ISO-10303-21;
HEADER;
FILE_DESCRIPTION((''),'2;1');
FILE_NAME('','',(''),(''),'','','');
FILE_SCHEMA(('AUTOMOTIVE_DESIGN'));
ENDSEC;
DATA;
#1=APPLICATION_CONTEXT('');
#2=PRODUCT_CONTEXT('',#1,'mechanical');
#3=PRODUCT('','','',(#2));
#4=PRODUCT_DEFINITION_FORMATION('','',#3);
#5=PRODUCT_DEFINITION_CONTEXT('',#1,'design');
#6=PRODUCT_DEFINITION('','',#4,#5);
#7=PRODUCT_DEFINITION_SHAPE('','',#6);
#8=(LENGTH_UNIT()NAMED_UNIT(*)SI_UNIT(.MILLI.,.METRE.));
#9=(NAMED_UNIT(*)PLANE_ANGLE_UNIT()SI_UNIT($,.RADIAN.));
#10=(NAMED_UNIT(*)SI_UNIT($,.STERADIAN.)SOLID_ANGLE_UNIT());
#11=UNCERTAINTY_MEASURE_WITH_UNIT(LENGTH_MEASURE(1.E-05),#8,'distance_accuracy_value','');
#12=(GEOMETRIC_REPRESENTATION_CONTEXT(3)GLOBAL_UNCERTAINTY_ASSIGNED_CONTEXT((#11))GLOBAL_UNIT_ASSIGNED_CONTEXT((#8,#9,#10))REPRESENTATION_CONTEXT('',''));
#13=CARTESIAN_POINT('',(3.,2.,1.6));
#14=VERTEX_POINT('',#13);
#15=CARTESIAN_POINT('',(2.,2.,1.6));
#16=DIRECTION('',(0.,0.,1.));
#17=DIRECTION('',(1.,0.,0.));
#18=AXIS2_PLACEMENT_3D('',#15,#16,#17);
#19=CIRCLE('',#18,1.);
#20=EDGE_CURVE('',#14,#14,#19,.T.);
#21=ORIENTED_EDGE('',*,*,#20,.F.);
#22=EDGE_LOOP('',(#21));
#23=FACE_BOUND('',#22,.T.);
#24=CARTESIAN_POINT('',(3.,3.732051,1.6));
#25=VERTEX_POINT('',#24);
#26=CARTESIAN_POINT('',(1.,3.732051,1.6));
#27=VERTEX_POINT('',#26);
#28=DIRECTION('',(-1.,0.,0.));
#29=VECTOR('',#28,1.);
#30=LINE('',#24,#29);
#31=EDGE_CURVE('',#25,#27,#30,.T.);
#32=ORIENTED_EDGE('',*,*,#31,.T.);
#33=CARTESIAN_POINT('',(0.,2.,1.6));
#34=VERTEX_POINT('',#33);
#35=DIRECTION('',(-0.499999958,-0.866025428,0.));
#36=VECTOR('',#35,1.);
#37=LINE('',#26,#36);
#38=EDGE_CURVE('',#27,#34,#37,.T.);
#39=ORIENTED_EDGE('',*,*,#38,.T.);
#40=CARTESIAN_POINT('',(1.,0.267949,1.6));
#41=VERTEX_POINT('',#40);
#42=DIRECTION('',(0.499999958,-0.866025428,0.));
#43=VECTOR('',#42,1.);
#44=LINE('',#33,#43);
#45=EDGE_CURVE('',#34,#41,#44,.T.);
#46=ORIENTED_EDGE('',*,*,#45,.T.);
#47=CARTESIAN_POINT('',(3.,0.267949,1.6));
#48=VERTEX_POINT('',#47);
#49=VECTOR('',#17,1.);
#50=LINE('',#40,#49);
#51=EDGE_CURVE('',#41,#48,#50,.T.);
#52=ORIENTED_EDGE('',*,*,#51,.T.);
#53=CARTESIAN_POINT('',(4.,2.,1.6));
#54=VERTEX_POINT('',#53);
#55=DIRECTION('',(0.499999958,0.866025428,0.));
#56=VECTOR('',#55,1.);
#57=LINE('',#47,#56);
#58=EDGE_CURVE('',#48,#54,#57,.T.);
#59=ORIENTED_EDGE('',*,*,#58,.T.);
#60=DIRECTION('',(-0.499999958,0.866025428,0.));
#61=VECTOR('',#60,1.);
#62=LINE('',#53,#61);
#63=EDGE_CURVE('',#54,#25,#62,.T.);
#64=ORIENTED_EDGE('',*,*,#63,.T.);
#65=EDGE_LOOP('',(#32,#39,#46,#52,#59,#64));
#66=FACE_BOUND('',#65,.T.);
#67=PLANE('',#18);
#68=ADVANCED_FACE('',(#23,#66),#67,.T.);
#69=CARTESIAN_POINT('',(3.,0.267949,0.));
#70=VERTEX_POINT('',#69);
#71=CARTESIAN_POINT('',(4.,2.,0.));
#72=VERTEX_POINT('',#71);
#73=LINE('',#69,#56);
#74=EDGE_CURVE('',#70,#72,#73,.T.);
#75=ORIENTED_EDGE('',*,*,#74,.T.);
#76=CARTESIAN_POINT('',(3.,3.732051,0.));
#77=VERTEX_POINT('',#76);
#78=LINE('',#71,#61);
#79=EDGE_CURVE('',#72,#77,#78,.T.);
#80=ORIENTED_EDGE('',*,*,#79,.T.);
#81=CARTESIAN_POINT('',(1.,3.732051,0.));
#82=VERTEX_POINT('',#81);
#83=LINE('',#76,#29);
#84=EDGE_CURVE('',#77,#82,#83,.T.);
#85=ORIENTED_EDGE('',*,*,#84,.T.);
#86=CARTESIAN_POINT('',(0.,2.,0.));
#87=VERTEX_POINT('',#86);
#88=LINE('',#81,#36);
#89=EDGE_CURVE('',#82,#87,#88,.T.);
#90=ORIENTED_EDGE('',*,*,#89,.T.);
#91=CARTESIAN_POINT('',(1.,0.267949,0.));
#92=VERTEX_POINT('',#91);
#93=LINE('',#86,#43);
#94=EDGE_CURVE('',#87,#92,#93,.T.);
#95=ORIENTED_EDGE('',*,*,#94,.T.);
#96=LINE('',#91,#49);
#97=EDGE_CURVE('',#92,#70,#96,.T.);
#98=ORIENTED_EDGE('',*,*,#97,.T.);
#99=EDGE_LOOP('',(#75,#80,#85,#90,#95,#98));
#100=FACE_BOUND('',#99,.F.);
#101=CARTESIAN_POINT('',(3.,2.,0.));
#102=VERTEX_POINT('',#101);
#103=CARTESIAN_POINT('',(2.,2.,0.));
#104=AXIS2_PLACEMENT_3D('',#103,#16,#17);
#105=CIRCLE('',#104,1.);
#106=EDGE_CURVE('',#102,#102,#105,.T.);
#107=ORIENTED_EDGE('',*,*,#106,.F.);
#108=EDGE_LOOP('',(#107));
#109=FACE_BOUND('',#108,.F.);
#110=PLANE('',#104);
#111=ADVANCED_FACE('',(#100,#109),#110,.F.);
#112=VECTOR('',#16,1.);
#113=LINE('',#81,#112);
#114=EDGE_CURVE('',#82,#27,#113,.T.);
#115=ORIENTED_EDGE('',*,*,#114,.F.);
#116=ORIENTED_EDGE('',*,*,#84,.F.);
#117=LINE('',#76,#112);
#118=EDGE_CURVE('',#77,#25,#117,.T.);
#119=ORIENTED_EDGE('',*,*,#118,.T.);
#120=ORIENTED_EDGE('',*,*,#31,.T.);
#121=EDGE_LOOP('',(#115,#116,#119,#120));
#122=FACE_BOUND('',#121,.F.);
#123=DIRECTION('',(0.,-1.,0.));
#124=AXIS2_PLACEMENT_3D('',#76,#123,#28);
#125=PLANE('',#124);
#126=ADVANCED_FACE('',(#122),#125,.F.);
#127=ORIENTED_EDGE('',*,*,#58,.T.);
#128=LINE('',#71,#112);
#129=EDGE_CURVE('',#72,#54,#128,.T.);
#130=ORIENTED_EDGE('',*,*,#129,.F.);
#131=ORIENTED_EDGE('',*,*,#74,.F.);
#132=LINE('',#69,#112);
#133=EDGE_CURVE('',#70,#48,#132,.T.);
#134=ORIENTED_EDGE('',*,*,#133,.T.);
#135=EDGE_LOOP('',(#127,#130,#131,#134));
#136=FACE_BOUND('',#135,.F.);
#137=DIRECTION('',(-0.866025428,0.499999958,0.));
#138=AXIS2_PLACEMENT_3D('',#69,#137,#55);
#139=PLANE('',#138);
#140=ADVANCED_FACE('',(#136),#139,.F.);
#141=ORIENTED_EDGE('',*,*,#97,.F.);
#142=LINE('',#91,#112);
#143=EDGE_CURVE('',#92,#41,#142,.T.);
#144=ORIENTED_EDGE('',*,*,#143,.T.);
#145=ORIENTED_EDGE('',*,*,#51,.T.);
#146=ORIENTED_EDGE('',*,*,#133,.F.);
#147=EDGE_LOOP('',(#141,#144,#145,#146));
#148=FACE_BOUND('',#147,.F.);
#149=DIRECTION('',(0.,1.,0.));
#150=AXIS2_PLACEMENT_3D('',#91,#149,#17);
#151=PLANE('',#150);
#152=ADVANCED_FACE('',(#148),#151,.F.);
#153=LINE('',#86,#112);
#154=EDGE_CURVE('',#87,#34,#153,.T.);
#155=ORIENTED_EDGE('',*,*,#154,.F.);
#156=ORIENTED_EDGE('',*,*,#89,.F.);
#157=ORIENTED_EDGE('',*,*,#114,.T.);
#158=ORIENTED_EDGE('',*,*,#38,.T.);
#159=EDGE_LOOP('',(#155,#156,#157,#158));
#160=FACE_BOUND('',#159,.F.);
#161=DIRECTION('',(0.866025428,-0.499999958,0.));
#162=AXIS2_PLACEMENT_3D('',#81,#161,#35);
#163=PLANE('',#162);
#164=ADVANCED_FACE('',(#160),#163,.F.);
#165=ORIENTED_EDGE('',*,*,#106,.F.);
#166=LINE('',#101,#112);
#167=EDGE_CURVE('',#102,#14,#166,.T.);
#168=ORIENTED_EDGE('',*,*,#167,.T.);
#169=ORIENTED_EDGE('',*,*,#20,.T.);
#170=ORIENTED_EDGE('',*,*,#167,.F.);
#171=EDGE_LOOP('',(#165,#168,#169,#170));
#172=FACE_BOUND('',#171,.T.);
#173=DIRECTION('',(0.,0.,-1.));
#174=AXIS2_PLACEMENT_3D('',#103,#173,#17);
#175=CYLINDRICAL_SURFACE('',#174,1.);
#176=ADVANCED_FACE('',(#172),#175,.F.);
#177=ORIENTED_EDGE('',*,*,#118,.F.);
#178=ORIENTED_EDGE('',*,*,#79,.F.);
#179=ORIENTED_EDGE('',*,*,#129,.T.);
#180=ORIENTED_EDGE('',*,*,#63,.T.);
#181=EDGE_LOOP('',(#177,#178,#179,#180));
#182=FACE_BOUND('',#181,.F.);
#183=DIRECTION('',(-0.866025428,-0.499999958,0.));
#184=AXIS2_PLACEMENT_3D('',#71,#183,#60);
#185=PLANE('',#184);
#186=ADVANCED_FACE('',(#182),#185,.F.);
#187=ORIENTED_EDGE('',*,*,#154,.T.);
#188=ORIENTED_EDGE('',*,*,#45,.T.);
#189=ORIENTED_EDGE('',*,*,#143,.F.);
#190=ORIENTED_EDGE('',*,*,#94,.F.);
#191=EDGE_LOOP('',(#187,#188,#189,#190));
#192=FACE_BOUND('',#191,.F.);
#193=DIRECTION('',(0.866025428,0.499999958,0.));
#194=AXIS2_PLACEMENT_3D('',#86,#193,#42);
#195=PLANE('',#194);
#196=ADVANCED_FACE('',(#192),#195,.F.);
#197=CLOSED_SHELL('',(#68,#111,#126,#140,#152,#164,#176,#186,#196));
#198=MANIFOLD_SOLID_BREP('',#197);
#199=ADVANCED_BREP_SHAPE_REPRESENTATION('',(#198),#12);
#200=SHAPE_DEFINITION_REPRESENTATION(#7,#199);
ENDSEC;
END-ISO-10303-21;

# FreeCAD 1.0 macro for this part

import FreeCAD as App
import Part
import Sketcher
from FreeCAD import Vector
Q = App.Units.Quantity

doc = App.newDocument("Part")
body = doc.addObject("PartDesign::Body", "Body")

sketch1 = doc.addObject("Sketcher::SketchObject", "Sketch")
body.addObject(sketch1)
sketch1.AttachmentSupport = (doc.XY_Plane, [""])
sketch1.MapMode = "FlatFace"
sketch1.addGeometry(Part.Circle(Vector(2, 2, 0), Vector(0, 0, 1), 1), False)
sketch1.addConstraint([
    Sketcher.Constraint("Diameter", 0, Q("2 mm")),
    Sketcher.Constraint("DistanceX", -1, 1, 0, 3, Q("2 mm")),
    Sketcher.Constraint("DistanceY", -1, 1, 0, 3, Q("2 mm")),
])
pad1 = doc.addObject("PartDesign::Pad", "Pad")
body.addObject(pad1)
pad1.Profile = sketch1
pad1.Length = 1.6
body2 = doc.addObject("PartDesign::Body", "Body001")

sketch2 = doc.addObject("Sketcher::SketchObject", "Sketch001")
body2.addObject(sketch2)
sketch2.AttachmentSupport = (doc.getObject("XY_Plane001"), [""])
sketch2.MapMode = "FlatFace"
sketch2.addGeometry([
    Part.LineSegment(Vector(0, 2, 0), Vector(1, 0.3, 0)),
    Part.LineSegment(Vector(1, 0.3, 0), Vector(3, 0.3, 0)),
    Part.LineSegment(Vector(3, 0.3, 0), Vector(4, 2, 0)),
    Part.LineSegment(Vector(4, 2, 0), Vector(3, 3.7, 0)),
    Part.LineSegment(Vector(3, 3.7, 0), Vector(1, 3.7, 0)),
    Part.LineSegment(Vector(1, 3.7, 0), Vector(0, 2, 0)),
], False)
sketch2.addConstraint([
    Sketcher.Constraint("Coincident", 0, 2, 1, 1),
    Sketcher.Constraint("Coincident", 1, 2, 2, 1),
    Sketcher.Constraint("Coincident", 2, 2, 3, 1),
    Sketcher.Constraint("Coincident", 3, 2, 4, 1),
    Sketcher.Constraint("Coincident", 4, 2, 5, 1),
    Sketcher.Constraint("Coincident", 5, 2, 0, 1),
    Sketcher.Constraint("Horizontal", 1),
    Sketcher.Constraint("Horizontal", 4),
    Sketcher.Constraint("PointOnObject", 5, 2, -2),
    Sketcher.Constraint("Parallel", 0, 3),
    Sketcher.Constraint("Parallel", 2, 5),
    Sketcher.Constraint("Horizontal", 2, 2, 5, 2),
    Sketcher.Constraint("Vertical", 1, 2, 3, 2),
    Sketcher.Constraint("Vertical", 0, 2, 4, 2),
    Sketcher.Constraint("DistanceX", 1, 1, 1, 2, Q("2 mm")),
    Sketcher.Constraint("Angle", 0, Q("-60.000003 deg")),
    Sketcher.Constraint("Distance", 0, Q("2 mm")),
    Sketcher.Constraint("DistanceY", -1, 1, 2, 2, Q("2 mm")),
])
pad2 = doc.addObject("PartDesign::Pad", "Pad001")
body2.addObject(pad2)
pad2.Profile = sketch2
pad2.Length = 1.6
doc.recompute()

boolean = doc.addObject("PartDesign::Boolean", "Boolean")
body2.addObject(boolean)
boolean.Type = "Cut"
boolean.addObjects([body])

doc.recompute()
